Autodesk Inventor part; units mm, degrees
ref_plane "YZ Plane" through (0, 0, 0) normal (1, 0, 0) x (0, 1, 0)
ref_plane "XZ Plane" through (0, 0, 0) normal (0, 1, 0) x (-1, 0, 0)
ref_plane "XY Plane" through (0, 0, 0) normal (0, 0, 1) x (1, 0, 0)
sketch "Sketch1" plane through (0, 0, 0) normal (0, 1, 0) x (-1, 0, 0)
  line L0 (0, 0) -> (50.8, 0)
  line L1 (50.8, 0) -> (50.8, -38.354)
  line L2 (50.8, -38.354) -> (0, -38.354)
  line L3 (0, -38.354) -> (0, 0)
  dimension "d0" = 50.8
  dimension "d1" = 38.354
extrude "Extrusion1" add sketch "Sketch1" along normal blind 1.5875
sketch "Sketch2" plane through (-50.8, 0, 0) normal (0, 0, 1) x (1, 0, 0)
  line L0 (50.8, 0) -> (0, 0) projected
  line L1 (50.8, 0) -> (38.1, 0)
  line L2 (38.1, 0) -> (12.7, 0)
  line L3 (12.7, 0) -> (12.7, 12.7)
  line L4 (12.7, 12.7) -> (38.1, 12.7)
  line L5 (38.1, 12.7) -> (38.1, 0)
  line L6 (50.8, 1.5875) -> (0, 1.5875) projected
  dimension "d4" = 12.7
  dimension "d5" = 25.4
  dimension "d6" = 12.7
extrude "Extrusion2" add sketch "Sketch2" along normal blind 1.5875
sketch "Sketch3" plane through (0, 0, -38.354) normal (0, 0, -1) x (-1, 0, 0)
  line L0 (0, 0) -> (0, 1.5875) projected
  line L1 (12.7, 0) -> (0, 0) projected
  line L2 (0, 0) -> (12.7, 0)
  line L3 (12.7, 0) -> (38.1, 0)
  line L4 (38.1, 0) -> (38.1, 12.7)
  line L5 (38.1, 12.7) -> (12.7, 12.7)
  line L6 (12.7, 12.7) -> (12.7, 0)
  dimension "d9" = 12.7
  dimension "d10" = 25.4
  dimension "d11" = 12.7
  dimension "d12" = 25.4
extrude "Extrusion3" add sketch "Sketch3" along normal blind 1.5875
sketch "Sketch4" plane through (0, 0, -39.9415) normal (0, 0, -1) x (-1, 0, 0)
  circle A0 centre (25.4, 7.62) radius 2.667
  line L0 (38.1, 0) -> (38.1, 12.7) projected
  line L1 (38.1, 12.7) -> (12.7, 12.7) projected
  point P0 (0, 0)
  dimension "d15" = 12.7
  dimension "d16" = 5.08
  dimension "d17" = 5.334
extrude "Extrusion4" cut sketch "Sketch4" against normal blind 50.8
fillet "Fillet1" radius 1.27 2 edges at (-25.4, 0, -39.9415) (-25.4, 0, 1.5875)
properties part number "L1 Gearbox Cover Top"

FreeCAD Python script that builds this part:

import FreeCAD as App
import Part
import Sketcher
from FreeCAD import Vector
Q = App.Units.Quantity


def edges_at(feature, points):
    """Names of the edges that pass closest to the given points."""
    edges = feature.Shape.Edges
    near = lambda p: min(range(len(edges)), key=lambda i: edges[i].distToShape(Part.Vertex(*p))[0])
    return sorted({f"Edge{near(p) + 1}" for p in points})


def add_polygon(sketch, points):
    """Adds a closed chain of lines whose ends are joined by coincident constraints."""
    first, n = sketch.GeometryCount, len(points)
    for a, b in zip(points, points[1:] + points[:1]):
        sketch.addGeometry(Part.LineSegment(App.Vector(*a, 0), App.Vector(*b, 0)), False)
    for i in range(n):
        sketch.addConstraint(Sketcher.Constraint("Coincident", first + i, 2, first + (i + 1) % n, 1))

doc = App.newDocument("Part")
body = doc.addObject("PartDesign::Body", "Body")

# Sketch on XZ plane
sketch1 = body.newObject("Sketcher::SketchObject", "Sketch")
sketch1.AttachmentSupport = (doc.getObject("XZ_Plane"), [""])
sketch1.MapMode = "FlatFace"
add_polygon(sketch1, [(-51, 0), (0, 0), (0, -38), (-51, -38)])  # lines 0-3
sketch1.addConstraint([
    Sketcher.Constraint("Horizontal", 0),
    Sketcher.Constraint("Vertical", 1),
    Sketcher.Constraint("Horizontal", 2),
    Sketcher.Constraint("Vertical", 3),
    Sketcher.Constraint("Coincident", 0, 2, -1, 1),
    Sketcher.Constraint("DistanceX", 0, 1, 0, 2, Q("2 in")),
    Sketcher.Constraint("DistanceY", 1, 2, 1, 1, Q("1.51 in")),
])
pad1 = body.newObject("PartDesign::Pad", "Pad")
pad1.Profile = sketch1
pad1.Length = Q("0.0625 in")
pad1.Reversed = True

# Sketch on XY plane
sketch2 = body.newObject("Sketcher::SketchObject", "Sketch001")
sketch2.AttachmentSupport = (doc.getObject("XY_Plane"), [""])
sketch2.MapMode = "FlatFace"
add_polygon(sketch2, [(-38, 0), (-13, 0), (-13, 13), (-38, 13)])  # lines 0-3
sketch2.addConstraint([
    Sketcher.Constraint("Horizontal", 0),
    Sketcher.Constraint("Vertical", 1),
    Sketcher.Constraint("Horizontal", 2),
    Sketcher.Constraint("Vertical", 3),
    Sketcher.Constraint("PointOnObject", 0, 2, -1),
    Sketcher.Constraint("DistanceX", 0, 1, 0, 2, Q("1 in")),
    Sketcher.Constraint("DistanceY", 1, 1, 1, 2, Q("0.5 in")),
    Sketcher.Constraint("DistanceX", 0, 2, -1, 1, Q("0.5 in")),
])
pad2 = body.newObject("PartDesign::Pad", "Pad001")
pad2.Profile = sketch2
pad2.Length = Q("0.0625 in")

# Sketch on XY plane
sketch3 = body.newObject("Sketcher::SketchObject", "Sketch002")
sketch3.AttachmentSupport = (doc.getObject("XY_Plane"), [""])
sketch3.MapMode = "FlatFace"
sketch3.AttachmentOffset = App.Placement(Vector(0, 0, -1.51 * 25.4), App.Rotation())
add_polygon(sketch3, [(-13, 13), (-13, 0), (-38, 0), (-38, 13)])  # lines 0-3
sketch3.addConstraint([
    Sketcher.Constraint("Vertical", 0),
    Sketcher.Constraint("Horizontal", 1),
    Sketcher.Constraint("Vertical", 2),
    Sketcher.Constraint("Horizontal", 3),
    Sketcher.Constraint("PointOnObject", 0, 2, -1),
    Sketcher.Constraint("DistanceX", 1, 2, 1, 1, Q("1 in")),
    Sketcher.Constraint("DistanceY", 0, 2, 0, 1, Q("0.5 in")),
    Sketcher.Constraint("DistanceX", 0, 2, -1, 1, Q("0.5 in")),
])
pad3 = body.newObject("PartDesign::Pad", "Pad002")
pad3.Profile = sketch3
pad3.Length = Q("0.0625 in")
pad3.Reversed = True

# Sketch on XY plane
sketch4 = body.newObject("Sketcher::SketchObject", "Sketch003")
sketch4.AttachmentSupport = (doc.getObject("XY_Plane"), [""])
sketch4.MapMode = "FlatFace"
sketch4.AttachmentOffset = App.Placement(Vector(0, 0, -1.5725 * 25.4), App.Rotation())
sketch4.addGeometry(Part.Circle(Vector(-25.4, 7.6, 0), Vector(0, 0, 1), 2.7), False)
sketch4.addConstraint([
    Sketcher.Constraint("Diameter", 0, Q("0.21 in")),
    Sketcher.Constraint("DistanceX", 0, 3, -1, 1, Q("1 in")),
    Sketcher.Constraint("DistanceY", -1, 1, 0, 3, Q("0.3 in")),
])
pocket1 = body.newObject("PartDesign::Pocket", "Pocket")
pocket1.Profile = sketch4
pocket1.Length = Q("2 in")
pocket1.Reversed = True
doc.recompute()

fillet = body.newObject("PartDesign::Fillet", "Fillet")
fillet.Base = (pocket1, edges_at(pocket1, [(-25.4, 0, -39.941), (-25.4, 0, 1.587)]))
fillet.Radius = Q("0.05 in")

doc.recompute()
